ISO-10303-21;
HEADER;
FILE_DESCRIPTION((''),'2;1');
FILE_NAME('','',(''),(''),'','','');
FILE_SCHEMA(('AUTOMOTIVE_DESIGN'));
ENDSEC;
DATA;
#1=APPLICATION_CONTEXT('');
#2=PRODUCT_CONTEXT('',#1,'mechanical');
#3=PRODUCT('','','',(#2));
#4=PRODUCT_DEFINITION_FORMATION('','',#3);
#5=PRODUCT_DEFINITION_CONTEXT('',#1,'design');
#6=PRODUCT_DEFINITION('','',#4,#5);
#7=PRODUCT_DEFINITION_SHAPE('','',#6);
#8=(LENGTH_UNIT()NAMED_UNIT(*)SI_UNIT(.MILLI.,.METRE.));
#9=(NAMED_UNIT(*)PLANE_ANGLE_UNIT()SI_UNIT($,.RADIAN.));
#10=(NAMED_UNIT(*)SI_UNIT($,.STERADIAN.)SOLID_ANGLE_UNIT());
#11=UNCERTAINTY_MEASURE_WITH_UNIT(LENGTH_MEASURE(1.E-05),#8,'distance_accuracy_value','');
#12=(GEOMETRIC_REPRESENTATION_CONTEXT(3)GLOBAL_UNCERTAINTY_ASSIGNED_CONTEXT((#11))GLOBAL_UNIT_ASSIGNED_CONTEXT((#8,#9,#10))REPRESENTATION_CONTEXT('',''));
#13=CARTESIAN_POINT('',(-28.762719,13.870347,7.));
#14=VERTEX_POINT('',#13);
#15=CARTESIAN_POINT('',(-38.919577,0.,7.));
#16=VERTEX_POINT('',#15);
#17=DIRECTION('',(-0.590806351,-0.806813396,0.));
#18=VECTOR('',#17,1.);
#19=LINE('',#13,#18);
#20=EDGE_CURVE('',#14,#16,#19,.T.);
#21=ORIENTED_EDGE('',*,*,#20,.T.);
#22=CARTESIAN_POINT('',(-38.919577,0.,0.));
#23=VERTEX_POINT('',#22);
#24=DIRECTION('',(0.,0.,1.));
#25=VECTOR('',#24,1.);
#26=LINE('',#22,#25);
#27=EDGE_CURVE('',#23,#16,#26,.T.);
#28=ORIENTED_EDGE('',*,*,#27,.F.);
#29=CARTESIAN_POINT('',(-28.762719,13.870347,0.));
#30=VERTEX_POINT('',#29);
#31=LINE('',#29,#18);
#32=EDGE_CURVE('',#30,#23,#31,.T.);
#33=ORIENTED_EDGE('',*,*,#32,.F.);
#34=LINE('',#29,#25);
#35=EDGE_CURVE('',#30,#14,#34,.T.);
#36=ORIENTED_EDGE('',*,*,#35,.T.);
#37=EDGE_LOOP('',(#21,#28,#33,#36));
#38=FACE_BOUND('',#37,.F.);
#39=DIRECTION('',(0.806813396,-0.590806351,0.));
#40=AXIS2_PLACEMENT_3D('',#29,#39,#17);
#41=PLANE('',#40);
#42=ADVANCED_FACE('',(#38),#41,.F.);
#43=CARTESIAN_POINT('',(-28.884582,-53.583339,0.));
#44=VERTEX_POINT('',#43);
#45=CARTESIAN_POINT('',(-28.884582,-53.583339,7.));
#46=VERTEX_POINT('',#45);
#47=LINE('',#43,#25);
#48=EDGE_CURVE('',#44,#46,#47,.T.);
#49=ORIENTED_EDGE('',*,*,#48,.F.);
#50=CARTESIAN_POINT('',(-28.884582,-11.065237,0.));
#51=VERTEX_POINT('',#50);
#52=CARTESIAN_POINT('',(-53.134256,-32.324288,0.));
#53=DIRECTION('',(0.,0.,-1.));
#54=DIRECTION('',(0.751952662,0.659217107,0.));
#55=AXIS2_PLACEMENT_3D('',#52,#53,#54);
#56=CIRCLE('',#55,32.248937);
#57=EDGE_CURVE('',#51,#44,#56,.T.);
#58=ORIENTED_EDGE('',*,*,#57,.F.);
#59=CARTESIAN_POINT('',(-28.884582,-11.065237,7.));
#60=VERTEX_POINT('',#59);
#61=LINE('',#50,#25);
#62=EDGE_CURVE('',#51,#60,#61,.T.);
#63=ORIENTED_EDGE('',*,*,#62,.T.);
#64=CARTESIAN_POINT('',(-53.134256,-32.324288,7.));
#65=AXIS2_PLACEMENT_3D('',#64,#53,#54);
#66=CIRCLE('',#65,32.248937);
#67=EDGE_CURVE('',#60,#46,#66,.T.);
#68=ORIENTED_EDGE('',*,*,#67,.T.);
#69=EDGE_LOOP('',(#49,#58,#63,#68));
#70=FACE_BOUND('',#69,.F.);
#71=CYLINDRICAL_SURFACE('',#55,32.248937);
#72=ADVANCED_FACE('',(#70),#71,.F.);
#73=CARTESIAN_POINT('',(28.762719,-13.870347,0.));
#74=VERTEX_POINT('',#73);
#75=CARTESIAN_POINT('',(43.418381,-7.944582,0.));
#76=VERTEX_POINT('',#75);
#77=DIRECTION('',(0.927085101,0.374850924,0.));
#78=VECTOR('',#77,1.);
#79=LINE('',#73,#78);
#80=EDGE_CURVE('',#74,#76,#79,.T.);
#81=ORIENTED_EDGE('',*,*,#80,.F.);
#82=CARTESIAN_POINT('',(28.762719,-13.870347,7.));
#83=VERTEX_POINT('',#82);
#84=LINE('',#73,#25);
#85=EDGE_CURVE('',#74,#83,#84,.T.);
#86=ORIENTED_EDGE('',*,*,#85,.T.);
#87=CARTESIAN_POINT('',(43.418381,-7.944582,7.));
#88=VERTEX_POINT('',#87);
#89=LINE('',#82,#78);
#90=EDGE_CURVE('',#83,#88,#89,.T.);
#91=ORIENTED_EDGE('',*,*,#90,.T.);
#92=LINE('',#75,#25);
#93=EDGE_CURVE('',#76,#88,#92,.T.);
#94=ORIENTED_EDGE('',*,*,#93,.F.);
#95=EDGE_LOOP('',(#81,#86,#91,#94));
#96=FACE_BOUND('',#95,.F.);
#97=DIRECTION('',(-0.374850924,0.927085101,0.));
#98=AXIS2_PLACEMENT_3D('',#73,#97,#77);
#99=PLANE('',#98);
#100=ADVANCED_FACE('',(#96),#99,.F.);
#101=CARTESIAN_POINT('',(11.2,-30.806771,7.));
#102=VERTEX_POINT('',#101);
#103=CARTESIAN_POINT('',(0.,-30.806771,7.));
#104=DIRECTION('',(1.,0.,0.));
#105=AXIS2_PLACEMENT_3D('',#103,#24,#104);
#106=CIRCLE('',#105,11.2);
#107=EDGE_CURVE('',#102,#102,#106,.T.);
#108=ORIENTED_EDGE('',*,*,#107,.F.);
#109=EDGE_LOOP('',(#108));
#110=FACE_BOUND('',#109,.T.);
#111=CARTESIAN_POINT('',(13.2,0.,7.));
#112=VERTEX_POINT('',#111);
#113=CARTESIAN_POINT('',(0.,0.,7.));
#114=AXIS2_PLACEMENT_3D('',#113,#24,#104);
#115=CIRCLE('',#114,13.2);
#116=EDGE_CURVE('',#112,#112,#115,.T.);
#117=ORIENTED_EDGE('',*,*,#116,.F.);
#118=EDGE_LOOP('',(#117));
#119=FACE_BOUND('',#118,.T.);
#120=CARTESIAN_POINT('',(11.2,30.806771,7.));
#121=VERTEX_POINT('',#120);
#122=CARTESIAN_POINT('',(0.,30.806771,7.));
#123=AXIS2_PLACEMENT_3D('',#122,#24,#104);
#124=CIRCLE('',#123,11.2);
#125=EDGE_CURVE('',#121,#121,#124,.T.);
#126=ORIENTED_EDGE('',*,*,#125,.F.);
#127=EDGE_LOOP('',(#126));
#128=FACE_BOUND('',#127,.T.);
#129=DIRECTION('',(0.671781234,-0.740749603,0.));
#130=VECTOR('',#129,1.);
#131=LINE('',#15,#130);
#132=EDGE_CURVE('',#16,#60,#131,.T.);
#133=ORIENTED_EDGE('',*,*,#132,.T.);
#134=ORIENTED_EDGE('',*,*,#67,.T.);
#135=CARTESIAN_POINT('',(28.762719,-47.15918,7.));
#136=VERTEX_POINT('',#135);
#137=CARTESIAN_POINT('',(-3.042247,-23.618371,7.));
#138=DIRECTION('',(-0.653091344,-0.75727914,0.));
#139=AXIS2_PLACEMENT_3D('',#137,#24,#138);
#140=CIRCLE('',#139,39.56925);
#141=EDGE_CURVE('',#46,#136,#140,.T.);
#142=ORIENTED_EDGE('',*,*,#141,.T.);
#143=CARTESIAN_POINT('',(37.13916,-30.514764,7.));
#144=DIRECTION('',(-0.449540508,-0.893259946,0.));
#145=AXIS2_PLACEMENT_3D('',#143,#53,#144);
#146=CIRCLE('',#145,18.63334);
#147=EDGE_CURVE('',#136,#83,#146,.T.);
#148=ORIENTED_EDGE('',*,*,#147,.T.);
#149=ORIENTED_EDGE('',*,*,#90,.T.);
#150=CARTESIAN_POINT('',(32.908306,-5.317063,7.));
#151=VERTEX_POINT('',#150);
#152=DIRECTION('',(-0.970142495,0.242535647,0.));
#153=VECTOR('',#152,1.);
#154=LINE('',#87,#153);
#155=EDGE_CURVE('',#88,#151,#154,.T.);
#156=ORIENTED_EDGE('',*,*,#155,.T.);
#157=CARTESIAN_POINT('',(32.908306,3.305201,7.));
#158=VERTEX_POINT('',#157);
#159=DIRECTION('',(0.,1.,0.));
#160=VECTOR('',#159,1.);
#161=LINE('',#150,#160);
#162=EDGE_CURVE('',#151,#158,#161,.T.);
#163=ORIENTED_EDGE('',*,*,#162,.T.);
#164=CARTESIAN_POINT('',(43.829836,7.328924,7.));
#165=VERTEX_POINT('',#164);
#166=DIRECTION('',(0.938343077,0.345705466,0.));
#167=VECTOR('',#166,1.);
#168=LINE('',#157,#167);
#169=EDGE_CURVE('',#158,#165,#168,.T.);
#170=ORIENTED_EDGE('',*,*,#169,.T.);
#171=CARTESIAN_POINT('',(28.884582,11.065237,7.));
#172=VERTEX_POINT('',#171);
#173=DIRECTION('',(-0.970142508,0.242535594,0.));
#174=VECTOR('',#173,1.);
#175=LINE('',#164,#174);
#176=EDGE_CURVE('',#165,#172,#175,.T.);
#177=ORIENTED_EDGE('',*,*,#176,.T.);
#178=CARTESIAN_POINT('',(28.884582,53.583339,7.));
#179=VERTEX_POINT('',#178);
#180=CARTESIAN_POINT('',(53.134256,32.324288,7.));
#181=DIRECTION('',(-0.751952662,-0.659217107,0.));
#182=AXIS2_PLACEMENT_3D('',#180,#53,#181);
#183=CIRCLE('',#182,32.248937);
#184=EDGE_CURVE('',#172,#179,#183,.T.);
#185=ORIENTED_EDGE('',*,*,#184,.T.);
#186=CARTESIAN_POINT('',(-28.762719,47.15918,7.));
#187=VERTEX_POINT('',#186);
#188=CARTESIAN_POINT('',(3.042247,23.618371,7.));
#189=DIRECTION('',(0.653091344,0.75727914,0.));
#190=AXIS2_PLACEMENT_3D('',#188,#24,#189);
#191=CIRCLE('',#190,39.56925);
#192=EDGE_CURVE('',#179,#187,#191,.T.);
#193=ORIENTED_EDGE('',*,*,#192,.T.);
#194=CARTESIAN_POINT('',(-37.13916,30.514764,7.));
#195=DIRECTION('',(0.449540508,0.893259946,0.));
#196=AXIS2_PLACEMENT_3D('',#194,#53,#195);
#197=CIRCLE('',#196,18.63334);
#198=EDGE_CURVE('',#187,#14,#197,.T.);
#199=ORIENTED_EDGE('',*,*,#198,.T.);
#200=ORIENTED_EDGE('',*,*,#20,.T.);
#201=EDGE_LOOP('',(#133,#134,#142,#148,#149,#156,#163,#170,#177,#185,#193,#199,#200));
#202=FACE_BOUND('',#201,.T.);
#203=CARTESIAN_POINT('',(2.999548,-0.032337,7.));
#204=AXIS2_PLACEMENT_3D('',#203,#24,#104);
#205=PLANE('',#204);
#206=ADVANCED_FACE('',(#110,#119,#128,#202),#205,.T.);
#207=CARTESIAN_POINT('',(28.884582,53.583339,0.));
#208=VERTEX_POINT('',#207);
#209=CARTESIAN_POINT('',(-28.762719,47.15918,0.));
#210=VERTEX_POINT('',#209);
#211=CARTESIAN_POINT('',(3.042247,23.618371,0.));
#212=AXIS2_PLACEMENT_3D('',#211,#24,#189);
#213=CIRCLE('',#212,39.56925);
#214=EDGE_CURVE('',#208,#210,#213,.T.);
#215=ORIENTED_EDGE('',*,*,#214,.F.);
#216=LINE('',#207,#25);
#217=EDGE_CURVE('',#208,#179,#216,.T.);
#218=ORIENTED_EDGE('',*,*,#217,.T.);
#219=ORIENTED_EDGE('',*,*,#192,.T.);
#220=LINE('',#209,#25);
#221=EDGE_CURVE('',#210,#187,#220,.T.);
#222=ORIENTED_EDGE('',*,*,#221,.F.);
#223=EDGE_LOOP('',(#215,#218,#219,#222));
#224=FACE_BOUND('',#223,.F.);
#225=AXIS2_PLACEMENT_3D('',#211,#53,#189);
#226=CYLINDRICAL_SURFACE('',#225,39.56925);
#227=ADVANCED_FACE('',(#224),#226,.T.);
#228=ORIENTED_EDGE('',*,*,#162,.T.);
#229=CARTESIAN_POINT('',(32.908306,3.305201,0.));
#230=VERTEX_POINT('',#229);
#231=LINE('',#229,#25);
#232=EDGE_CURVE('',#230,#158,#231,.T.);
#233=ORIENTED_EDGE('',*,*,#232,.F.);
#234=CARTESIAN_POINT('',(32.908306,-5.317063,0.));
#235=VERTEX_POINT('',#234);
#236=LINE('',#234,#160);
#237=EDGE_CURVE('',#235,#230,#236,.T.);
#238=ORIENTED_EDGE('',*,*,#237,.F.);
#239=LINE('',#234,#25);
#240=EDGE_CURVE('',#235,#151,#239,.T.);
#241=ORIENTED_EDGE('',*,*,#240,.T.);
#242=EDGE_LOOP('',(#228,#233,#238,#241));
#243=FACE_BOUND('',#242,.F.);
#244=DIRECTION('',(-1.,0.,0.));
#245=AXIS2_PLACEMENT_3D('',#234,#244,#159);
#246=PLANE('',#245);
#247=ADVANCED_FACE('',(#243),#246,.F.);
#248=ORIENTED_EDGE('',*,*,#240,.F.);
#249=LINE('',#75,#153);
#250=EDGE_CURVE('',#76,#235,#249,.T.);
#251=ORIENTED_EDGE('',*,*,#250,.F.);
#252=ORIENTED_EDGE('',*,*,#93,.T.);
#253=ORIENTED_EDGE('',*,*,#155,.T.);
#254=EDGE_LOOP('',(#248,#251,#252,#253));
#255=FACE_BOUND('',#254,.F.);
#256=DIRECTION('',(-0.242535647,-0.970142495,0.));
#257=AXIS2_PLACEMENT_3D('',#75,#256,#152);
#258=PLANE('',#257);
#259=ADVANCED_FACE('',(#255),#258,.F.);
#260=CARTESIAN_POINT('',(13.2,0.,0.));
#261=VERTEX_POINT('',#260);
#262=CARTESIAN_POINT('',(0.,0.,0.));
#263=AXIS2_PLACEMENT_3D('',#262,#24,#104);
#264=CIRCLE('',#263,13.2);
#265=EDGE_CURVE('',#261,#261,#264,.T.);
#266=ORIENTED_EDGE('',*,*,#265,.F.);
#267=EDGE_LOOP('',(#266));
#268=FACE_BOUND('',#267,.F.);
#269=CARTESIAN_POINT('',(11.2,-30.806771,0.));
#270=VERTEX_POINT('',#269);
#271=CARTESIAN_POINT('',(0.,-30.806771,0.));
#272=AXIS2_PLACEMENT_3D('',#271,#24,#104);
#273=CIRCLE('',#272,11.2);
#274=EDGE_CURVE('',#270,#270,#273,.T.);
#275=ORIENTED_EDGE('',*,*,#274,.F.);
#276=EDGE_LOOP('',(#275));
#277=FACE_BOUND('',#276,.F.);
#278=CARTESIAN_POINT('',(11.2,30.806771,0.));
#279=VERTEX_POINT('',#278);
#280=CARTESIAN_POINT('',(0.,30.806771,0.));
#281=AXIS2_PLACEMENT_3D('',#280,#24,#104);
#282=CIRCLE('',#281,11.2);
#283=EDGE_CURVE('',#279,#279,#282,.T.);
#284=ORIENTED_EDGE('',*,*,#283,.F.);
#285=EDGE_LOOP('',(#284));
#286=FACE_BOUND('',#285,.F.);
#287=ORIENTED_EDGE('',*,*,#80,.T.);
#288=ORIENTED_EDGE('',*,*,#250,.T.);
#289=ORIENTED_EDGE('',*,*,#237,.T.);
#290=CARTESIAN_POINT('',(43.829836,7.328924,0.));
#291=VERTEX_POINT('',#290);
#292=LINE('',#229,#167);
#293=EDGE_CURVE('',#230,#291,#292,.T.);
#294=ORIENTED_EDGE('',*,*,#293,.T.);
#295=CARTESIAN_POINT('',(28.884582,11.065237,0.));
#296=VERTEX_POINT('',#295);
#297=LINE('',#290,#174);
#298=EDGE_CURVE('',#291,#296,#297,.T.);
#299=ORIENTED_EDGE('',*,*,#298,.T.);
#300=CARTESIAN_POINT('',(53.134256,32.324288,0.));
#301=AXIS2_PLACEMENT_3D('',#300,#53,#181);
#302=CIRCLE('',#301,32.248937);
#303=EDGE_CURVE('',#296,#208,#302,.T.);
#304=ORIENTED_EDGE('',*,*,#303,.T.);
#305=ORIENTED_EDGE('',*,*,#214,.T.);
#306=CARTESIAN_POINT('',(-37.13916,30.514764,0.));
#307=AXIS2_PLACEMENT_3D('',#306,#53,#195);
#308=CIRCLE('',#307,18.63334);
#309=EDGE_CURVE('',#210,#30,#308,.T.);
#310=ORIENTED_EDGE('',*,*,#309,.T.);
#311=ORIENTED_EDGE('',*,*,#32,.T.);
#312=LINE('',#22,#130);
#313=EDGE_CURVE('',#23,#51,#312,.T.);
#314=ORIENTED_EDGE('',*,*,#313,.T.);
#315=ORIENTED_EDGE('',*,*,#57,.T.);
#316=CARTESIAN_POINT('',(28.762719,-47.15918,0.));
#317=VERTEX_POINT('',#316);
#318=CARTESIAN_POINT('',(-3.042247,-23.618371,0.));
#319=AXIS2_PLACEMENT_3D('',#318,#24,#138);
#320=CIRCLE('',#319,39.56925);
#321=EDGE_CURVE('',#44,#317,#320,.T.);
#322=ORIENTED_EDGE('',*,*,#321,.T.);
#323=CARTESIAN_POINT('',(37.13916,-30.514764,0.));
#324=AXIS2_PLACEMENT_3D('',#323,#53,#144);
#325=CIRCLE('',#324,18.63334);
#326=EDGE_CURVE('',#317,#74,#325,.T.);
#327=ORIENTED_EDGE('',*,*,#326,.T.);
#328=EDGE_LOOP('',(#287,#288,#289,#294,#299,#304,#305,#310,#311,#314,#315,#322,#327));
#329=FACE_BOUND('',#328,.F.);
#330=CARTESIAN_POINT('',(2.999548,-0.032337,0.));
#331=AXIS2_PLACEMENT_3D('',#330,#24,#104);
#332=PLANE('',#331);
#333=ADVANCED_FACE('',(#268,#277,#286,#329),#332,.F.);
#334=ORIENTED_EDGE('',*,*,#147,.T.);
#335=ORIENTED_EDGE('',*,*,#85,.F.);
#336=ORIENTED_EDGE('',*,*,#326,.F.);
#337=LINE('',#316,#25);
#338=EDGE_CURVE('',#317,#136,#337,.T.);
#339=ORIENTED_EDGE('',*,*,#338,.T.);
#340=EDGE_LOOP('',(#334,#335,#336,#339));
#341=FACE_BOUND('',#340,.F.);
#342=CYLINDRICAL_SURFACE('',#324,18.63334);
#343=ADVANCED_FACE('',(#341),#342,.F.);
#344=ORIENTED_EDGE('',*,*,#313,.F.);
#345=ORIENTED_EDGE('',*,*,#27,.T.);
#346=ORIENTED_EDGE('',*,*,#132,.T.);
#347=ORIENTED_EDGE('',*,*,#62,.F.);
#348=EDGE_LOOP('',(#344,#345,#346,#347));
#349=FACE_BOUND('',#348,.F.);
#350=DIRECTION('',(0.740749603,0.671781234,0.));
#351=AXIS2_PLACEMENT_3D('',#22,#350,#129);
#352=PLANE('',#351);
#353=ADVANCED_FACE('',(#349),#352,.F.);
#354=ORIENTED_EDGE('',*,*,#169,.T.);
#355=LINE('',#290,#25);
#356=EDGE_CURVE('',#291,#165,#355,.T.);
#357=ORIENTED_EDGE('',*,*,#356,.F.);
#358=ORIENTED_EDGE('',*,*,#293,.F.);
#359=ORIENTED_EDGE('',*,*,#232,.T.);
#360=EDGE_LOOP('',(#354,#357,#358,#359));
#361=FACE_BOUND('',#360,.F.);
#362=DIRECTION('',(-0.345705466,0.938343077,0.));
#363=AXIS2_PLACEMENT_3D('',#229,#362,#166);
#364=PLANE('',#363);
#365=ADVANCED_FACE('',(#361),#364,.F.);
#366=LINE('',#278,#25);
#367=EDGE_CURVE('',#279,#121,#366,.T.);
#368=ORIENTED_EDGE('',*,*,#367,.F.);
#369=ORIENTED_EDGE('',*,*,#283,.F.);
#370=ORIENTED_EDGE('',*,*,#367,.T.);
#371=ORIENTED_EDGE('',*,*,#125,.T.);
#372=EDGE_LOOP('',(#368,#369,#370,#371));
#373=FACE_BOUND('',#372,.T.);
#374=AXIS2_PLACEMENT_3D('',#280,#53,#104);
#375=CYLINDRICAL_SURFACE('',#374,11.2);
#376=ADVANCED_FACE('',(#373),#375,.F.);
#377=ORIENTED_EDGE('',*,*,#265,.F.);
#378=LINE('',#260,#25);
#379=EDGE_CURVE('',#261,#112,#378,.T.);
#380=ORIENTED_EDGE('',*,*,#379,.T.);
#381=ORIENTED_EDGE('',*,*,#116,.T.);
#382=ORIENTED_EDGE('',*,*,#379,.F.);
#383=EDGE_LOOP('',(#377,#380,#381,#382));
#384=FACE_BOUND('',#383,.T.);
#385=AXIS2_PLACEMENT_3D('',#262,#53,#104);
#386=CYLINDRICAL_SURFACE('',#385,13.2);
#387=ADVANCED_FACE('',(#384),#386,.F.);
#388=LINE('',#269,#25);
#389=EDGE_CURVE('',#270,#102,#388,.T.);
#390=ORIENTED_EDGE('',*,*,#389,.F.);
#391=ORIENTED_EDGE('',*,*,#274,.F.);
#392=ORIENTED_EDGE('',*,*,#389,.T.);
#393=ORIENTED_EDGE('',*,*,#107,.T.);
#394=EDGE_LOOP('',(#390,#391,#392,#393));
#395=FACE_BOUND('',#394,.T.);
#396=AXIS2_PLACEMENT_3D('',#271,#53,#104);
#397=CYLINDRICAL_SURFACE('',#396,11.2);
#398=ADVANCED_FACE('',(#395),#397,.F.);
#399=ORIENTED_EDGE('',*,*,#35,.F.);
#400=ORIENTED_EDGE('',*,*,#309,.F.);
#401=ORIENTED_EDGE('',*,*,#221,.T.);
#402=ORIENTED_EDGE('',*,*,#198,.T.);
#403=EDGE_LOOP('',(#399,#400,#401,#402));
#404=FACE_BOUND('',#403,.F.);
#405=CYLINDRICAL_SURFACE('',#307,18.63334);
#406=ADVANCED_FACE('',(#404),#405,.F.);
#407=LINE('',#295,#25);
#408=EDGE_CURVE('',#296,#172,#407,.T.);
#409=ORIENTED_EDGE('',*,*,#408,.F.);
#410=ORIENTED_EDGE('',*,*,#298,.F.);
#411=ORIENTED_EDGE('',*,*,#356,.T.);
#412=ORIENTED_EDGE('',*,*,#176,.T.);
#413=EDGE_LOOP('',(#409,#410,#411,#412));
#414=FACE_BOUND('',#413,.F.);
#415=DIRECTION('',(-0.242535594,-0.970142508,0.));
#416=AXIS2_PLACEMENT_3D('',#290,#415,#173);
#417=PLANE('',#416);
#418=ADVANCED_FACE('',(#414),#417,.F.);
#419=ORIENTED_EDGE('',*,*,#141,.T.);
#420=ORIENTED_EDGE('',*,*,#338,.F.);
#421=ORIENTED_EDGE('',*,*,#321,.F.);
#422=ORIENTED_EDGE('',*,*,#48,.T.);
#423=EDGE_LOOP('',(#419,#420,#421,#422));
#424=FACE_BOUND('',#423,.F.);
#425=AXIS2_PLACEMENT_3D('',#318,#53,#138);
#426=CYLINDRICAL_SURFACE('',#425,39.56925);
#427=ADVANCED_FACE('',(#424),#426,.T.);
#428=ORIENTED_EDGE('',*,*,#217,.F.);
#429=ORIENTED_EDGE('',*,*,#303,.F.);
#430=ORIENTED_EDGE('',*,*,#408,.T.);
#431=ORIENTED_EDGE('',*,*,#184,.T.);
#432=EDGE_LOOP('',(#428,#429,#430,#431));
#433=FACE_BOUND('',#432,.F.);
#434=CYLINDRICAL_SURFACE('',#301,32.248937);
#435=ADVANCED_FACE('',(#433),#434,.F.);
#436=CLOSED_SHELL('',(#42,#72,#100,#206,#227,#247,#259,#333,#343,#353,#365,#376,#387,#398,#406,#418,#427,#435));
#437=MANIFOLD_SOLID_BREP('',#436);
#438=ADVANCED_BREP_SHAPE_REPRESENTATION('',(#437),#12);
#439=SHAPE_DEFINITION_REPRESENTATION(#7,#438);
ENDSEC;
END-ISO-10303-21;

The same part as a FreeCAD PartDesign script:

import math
import FreeCAD as App
import Part
import Sketcher
from FreeCAD import Vector
Q = App.Units.Quantity

doc = App.newDocument("Part")
body = doc.addObject("PartDesign::Body", "Body")

sketch1 = doc.addObject("Sketcher::SketchObject", "Sketch")
body.addObject(sketch1)
sketch1.AttachmentSupport = (doc.XY_Plane, [""])
sketch1.MapMode = "FlatFace"
sketch1.addGeometry(Part.ArcOfCircle(Part.Circle(Vector(53.134256, 32.324288, 0), Vector(0, 0, 1), 32.248937), math.radians(138.759808), math.radians(221.240192)), False)
sketch1.addGeometry(Part.ArcOfCircle(Part.Circle(Vector(3.042247, 23.618371, 0), Vector(0, 0, 1), 39.56925), math.radians(49.224916), math.radians(143.492584)), False)
sketch1.addGeometry(Part.ArcOfCircle(Part.Circle(Vector(-37.13916, 30.514764, 0), Vector(0, 0, 1), 18.63334), math.radians(-63.285793), math.radians(63.285793)), False)
sketch1.addGeometry(Part.LineSegment(Vector(-28.762719, 13.870347, 0), Vector(-38.919577, 0, 0)), False)
sketch1.addGeometry(Part.LineSegment(Vector(-38.919577, 0, 0), Vector(-28.884582, -11.065237, 0)), False)
sketch1.addGeometry(Part.ArcOfCircle(Part.Circle(Vector(-53.134256, -32.324288, 0), Vector(0, 0, 1), 32.248937), math.radians(-41.240192), math.radians(41.240192)), False)
sketch1.addGeometry(Part.ArcOfCircle(Part.Circle(Vector(-3.042247, -23.618371, 0), Vector(0, 0, 1), 39.56925), math.radians(-130.775084), math.radians(-36.507416)), False)
sketch1.addGeometry(Part.ArcOfCircle(Part.Circle(Vector(37.13916, -30.514764, 0), Vector(0, 0, 1), 18.63334), math.radians(116.714207), math.radians(243.285793)), False)
sketch1.addGeometry(Part.LineSegment(Vector(28.762719, -13.870347, 0), Vector(43.418381, -7.944582, 0)), False)
sketch1.addGeometry(Part.LineSegment(Vector(43.418381, -7.944582, 0), Vector(32.908306, -5.317063, 0)), False)
sketch1.addGeometry(Part.LineSegment(Vector(32.908306, -5.317063, 0), Vector(32.908306, 3.305201, 0)), False)
sketch1.addGeometry(Part.LineSegment(Vector(32.908306, 3.305201, 0), Vector(43.829836, 7.328924, 0)), False)
sketch1.addGeometry(Part.LineSegment(Vector(43.829836, 7.328924, 0), Vector(28.884582, 11.065237, 0)), False)
sketch1.addGeometry(Part.Circle(Vector(0, -30.806771, 0), Vector(0, 0, 1), 11.2), False)
sketch1.addGeometry(Part.Circle(Vector(0, 0, 0), Vector(0, 0, 1), 13.2), False)
sketch1.addGeometry(Part.Circle(Vector(0, 30.806771, 0), Vector(0, 0, 1), 11.2), False)
sketch1.addConstraint(Sketcher.Constraint("Coincident", 0, 1, 1, 1))
sketch1.addConstraint(Sketcher.Constraint("Coincident", 1, 2, 2, 2))
sketch1.addConstraint(Sketcher.Constraint("Coincident", 2, 1, 3, 1))
sketch1.addConstraint(Sketcher.Constraint("Coincident", 3, 2, 4, 1))
sketch1.addConstraint(Sketcher.Constraint("Coincident", 4, 2, 5, 2))
sketch1.addConstraint(Sketcher.Constraint("Coincident", 5, 1, 6, 1))
sketch1.addConstraint(Sketcher.Constraint("Coincident", 6, 2, 7, 2))
sketch1.addConstraint(Sketcher.Constraint("Coincident", 7, 1, 8, 1))
sketch1.addConstraint(Sketcher.Constraint("Coincident", 8, 2, 9, 1))
sketch1.addConstraint(Sketcher.Constraint("Coincident", 9, 2, 10, 1))
sketch1.addConstraint(Sketcher.Constraint("Coincident", 10, 2, 11, 1))
sketch1.addConstraint(Sketcher.Constraint("Coincident", 11, 2, 12, 1))
sketch1.addConstraint(Sketcher.Constraint("Coincident", 12, 2, 0, 2))
sketch1.addConstraint(Sketcher.Constraint("Vertical", 10))
sketch1.addConstraint(Sketcher.Constraint("Coincident", 14, 3, -1, 1))
sketch1.addConstraint(Sketcher.Constraint("Equal", 0, 5))
sketch1.addConstraint(Sketcher.Constraint("Equal", 1, 6))
sketch1.addConstraint(Sketcher.Constraint("Equal", 2, 7))
sketch1.addConstraint(Sketcher.Constraint("Equal", 13, 15))
sketch1.addConstraint(Sketcher.Constraint("Symmetric", 0, 3, 5, 3, -1, 1))
sketch1.addConstraint(Sketcher.Constraint("Symmetric", 1, 3, 6, 3, -1, 1))
sketch1.addConstraint(Sketcher.Constraint("Symmetric", 2, 3, 7, 3, -1, 1))
sketch1.addConstraint(Sketcher.Constraint("Symmetric", 13, 3, 15, 3, -1, 1))
sketch1.addConstraint(Sketcher.Constraint("PointOnObject", 13, 3, -2))
sketch1.addConstraint(Sketcher.Constraint("PointOnObject", 3, 2, -1))
sketch1.addConstraint(Sketcher.Constraint("Parallel", 9, 12))
sketch1.addConstraint(Sketcher.Constraint("Vertical", 1, 2, 2, 1))
sketch1.addConstraint(Sketcher.Constraint("Vertical", 4, 2, 5, 1))
sketch1.addConstraint(Sketcher.Constraint("Vertical", 6, 2, 7, 1))
sketch1.addConstraint(Sketcher.Constraint("Vertical", 0, 1, 12, 2))
sketch1.addConstraint(Sketcher.Constraint("Diameter", 13, Q("22.4 mm")))
sketch1.addConstraint(Sketcher.Constraint("Diameter", 14, Q("26.4 mm")))
sketch1.addConstraint(Sketcher.Constraint("Radius", 1, Q("39.56925 mm")))
sketch1.addConstraint(Sketcher.Constraint("Radius", 2, Q("18.63334 mm")))
sketch1.addConstraint(Sketcher.Constraint("Radius", 0, Q("32.248937 mm")))
sketch1.addConstraint(Sketcher.Constraint("DistanceY", -1, 1, 10, 2, Q("3.305201 mm")))
sketch1.addConstraint(Sketcher.Constraint("DistanceY", 13, 3, 6, 3, Q("7.1884 mm")))
sketch1.addConstraint(Sketcher.Constraint("DistanceX", 1, 2, 0, 1, Q("57.647301 mm")))
sketch1.addConstraint(Sketcher.Constraint("DistanceY", 5, 1, 4, 2, Q("42.518102 mm")))
sketch1.addConstraint(Sketcher.Constraint("DistanceY", 6, 2, 8, 2, Q("39.214598 mm")))
sketch1.addConstraint(Sketcher.Constraint("DistanceY", 7, 3, 9, 2, Q("25.1977 mm")))
sketch1.addConstraint(Sketcher.Constraint("DistanceY", 9, 2, 12, 2, Q("16.3823 mm")))
sketch1.addConstraint(Sketcher.Constraint("DistanceX", 12, 2, 8, 2, Q("14.533799 mm")))
sketch1.addConstraint(Sketcher.Constraint("Distance", 4, Q("14.937891 mm")))
sketch1.addConstraint(Sketcher.Constraint("DistanceY", 10, 1, 10, 2, Q("8.622264 mm")))
sketch1.addConstraint(Sketcher.Constraint("DistanceY", -1, 1, 1, 3, Q("23.618371 mm")))
sketch1.addConstraint(Sketcher.Constraint("DistanceX", 2, 3, -1, 1, Q("37.13916 mm")))
sketch1.addConstraint(Sketcher.Constraint("DistanceX", 10, 2, 11, 2, Q("10.92153 mm")))
sketch1.addConstraint(Sketcher.Constraint("DistanceY", 7, 1, 11, 2, Q("21.199271 mm")))
pad1 = doc.addObject("PartDesign::Pad", "Pad")
body.addObject(pad1)
pad1.Profile = sketch1
pad1.Length = 7

doc.recompute()
